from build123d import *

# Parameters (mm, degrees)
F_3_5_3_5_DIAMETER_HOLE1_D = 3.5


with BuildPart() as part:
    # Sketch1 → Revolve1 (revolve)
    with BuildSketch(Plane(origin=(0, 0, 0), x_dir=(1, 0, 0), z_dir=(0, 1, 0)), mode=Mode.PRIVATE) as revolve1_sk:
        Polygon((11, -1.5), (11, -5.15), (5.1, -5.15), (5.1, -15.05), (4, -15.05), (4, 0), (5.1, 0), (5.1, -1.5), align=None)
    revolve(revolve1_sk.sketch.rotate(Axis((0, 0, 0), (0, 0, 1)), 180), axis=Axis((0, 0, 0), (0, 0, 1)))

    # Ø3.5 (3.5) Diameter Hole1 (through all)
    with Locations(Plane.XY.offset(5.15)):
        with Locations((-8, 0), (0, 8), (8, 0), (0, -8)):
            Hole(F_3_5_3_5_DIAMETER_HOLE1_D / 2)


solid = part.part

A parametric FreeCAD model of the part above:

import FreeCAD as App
import Part
import Sketcher


def add_polygon(sketch, points):
    """Adds a closed chain of lines whose ends are joined by coincident constraints."""
    first, n = sketch.GeometryCount, len(points)
    for a, b in zip(points, points[1:] + points[:1]):
        sketch.addGeometry(Part.LineSegment(App.Vector(*a, 0), App.Vector(*b, 0)), False)
    for i in range(n):
        sketch.addConstraint(Sketcher.Constraint("Coincident", first + i, 2, first + (i + 1) % n, 1))

doc = App.newDocument("Part")
params = doc.addObject("Spreadsheet::Sheet", "Params")
for row, (alias, value) in enumerate([
    ("sketch1_width", "5.9 mm"),
    ("sketch1_width2", "1.1 mm"),
    ("sketch1_height", "1.5 mm"),
    ("sketch1_height2", "9.9 mm"),
    ("sketch1_height3", "3.65 mm"),
    ("revolution_angle", "360 deg"),
    ("sketch2_diameter", "3.5 mm"),
    ("hole_diameter", "3.5 mm"),
], start=1):
    params.set(f"A{row}", alias)
    params.set(f"B{row}", "=" + value)
    params.setAlias(f"B{row}", alias)

body = doc.addObject("PartDesign::Body", "Body")

# Sketch on XZ plane
sketch1 = body.newObject("Sketcher::SketchObject", "Sketch")
sketch1.AttachmentSupport = (doc.getObject("XZ_Plane"), [""])
sketch1.MapMode = "FlatFace"
add_polygon(sketch1, [(11, 5.2), (11, 1.5), (5.1, 1.5), (5.1, 0), (4, 0), (4, 15.1), (5.1, 15.1), (5.1, 5.2)])  # lines 0-7
sketch1.addConstraint(Sketcher.Constraint("Vertical", 0))
sketch1.addConstraint(Sketcher.Constraint("Horizontal", 1))
sketch1.addConstraint(Sketcher.Constraint("Vertical", 2))
sketch1.addConstraint(Sketcher.Constraint("Horizontal", 3))
sketch1.addConstraint(Sketcher.Constraint("Vertical", 4))
sketch1.addConstraint(Sketcher.Constraint("Horizontal", 5))
sketch1.addConstraint(Sketcher.Constraint("Vertical", 6))
sketch1.addConstraint(Sketcher.Constraint("Horizontal", 7))
sketch1.addConstraint(Sketcher.Constraint("PointOnObject", 2, 2, -1))
sketch1.addConstraint(Sketcher.Constraint("Vertical", 2, 2, 5, 2))
sketch1.addConstraint(Sketcher.Constraint("DistanceX", 1, 2, 1, 1, 5.9))
sketch1.addConstraint(Sketcher.Constraint("DistanceX", 3, 2, 3, 1, 1.1))
sketch1.addConstraint(Sketcher.Constraint("DistanceY", 2, 2, 2, 1, 1.5))
sketch1.addConstraint(Sketcher.Constraint("DistanceY", 6, 2, 6, 1, 9.9))
sketch1.addConstraint(Sketcher.Constraint("DistanceX", -1, 1, 0, 2, 11.0))
sketch1.addConstraint(Sketcher.Constraint("DistanceY", 0, 2, 0, 1, 3.65))
sketch1.setExpression("Constraints[18]", "Params.sketch1_width")
sketch1.setExpression("Constraints[19]", "Params.sketch1_width2")
sketch1.setExpression("Constraints[20]", "Params.sketch1_height")
sketch1.setExpression("Constraints[21]", "Params.sketch1_height2")
sketch1.setExpression("Constraints[23]", "Params.sketch1_height3")
revolution = body.newObject("PartDesign::Revolution", "Revolution")
revolution.Profile = sketch1
revolution.ReferenceAxis = (sketch1, ["V_Axis"])
revolution.setExpression("Angle", "Params.revolution_angle")

# Sketch on XY plane
sketch2 = body.newObject("Sketcher::SketchObject", "Sketch001")
sketch2.AttachmentSupport = (doc.getObject("XY_Plane"), [""])
sketch2.MapMode = "FlatFace"
sketch2.AttachmentOffset = App.Placement(App.Vector(0, 0, 5.15), App.Rotation())
sketch2.addGeometry(Part.Circle(App.Vector(-8, 0, 0), App.Vector(0, 0, 1), 1.8), False)
sketch2.addGeometry(Part.Circle(App.Vector(0, 8, 0), App.Vector(0, 0, 1), 1.8), False)
sketch2.addGeometry(Part.Circle(App.Vector(8, 0, 0), App.Vector(0, 0, 1), 1.8), False)
sketch2.addGeometry(Part.Circle(App.Vector(0, -8, 0), App.Vector(0, 0, 1), 1.8), False)
sketch2.addConstraint(Sketcher.Constraint("Equal", 0, 1))
sketch2.addConstraint(Sketcher.Constraint("Equal", 1, 2))
sketch2.addConstraint(Sketcher.Constraint("Equal", 2, 3))
sketch2.addConstraint(Sketcher.Constraint("Symmetric", 0, 3, 2, 3, -1, 1))
sketch2.addConstraint(Sketcher.Constraint("Symmetric", 1, 3, 3, 3, -1, 1))
sketch2.addConstraint(Sketcher.Constraint("PointOnObject", 0, 3, -1))
sketch2.addConstraint(Sketcher.Constraint("PointOnObject", 1, 3, -2))
sketch2.addConstraint(Sketcher.Constraint("Diameter", 0, 3.5))
sketch2.addConstraint(Sketcher.Constraint("DistanceX", 0, 3, -1, 1, 8.0))
sketch2.addConstraint(Sketcher.Constraint("DistanceY", -1, 1, 1, 3, 8.0))
sketch2.setExpression("Constraints[7]", "Params.sketch2_diameter")
doc.recompute()
hole = body.newObject("PartDesign::Hole", "Hole")
hole.Profile = sketch2
hole.ThreadType = "None"
hole.setExpression("Diameter", "Params.hole_diameter")
hole.DepthType = "ThroughAll"

doc.recompute()
